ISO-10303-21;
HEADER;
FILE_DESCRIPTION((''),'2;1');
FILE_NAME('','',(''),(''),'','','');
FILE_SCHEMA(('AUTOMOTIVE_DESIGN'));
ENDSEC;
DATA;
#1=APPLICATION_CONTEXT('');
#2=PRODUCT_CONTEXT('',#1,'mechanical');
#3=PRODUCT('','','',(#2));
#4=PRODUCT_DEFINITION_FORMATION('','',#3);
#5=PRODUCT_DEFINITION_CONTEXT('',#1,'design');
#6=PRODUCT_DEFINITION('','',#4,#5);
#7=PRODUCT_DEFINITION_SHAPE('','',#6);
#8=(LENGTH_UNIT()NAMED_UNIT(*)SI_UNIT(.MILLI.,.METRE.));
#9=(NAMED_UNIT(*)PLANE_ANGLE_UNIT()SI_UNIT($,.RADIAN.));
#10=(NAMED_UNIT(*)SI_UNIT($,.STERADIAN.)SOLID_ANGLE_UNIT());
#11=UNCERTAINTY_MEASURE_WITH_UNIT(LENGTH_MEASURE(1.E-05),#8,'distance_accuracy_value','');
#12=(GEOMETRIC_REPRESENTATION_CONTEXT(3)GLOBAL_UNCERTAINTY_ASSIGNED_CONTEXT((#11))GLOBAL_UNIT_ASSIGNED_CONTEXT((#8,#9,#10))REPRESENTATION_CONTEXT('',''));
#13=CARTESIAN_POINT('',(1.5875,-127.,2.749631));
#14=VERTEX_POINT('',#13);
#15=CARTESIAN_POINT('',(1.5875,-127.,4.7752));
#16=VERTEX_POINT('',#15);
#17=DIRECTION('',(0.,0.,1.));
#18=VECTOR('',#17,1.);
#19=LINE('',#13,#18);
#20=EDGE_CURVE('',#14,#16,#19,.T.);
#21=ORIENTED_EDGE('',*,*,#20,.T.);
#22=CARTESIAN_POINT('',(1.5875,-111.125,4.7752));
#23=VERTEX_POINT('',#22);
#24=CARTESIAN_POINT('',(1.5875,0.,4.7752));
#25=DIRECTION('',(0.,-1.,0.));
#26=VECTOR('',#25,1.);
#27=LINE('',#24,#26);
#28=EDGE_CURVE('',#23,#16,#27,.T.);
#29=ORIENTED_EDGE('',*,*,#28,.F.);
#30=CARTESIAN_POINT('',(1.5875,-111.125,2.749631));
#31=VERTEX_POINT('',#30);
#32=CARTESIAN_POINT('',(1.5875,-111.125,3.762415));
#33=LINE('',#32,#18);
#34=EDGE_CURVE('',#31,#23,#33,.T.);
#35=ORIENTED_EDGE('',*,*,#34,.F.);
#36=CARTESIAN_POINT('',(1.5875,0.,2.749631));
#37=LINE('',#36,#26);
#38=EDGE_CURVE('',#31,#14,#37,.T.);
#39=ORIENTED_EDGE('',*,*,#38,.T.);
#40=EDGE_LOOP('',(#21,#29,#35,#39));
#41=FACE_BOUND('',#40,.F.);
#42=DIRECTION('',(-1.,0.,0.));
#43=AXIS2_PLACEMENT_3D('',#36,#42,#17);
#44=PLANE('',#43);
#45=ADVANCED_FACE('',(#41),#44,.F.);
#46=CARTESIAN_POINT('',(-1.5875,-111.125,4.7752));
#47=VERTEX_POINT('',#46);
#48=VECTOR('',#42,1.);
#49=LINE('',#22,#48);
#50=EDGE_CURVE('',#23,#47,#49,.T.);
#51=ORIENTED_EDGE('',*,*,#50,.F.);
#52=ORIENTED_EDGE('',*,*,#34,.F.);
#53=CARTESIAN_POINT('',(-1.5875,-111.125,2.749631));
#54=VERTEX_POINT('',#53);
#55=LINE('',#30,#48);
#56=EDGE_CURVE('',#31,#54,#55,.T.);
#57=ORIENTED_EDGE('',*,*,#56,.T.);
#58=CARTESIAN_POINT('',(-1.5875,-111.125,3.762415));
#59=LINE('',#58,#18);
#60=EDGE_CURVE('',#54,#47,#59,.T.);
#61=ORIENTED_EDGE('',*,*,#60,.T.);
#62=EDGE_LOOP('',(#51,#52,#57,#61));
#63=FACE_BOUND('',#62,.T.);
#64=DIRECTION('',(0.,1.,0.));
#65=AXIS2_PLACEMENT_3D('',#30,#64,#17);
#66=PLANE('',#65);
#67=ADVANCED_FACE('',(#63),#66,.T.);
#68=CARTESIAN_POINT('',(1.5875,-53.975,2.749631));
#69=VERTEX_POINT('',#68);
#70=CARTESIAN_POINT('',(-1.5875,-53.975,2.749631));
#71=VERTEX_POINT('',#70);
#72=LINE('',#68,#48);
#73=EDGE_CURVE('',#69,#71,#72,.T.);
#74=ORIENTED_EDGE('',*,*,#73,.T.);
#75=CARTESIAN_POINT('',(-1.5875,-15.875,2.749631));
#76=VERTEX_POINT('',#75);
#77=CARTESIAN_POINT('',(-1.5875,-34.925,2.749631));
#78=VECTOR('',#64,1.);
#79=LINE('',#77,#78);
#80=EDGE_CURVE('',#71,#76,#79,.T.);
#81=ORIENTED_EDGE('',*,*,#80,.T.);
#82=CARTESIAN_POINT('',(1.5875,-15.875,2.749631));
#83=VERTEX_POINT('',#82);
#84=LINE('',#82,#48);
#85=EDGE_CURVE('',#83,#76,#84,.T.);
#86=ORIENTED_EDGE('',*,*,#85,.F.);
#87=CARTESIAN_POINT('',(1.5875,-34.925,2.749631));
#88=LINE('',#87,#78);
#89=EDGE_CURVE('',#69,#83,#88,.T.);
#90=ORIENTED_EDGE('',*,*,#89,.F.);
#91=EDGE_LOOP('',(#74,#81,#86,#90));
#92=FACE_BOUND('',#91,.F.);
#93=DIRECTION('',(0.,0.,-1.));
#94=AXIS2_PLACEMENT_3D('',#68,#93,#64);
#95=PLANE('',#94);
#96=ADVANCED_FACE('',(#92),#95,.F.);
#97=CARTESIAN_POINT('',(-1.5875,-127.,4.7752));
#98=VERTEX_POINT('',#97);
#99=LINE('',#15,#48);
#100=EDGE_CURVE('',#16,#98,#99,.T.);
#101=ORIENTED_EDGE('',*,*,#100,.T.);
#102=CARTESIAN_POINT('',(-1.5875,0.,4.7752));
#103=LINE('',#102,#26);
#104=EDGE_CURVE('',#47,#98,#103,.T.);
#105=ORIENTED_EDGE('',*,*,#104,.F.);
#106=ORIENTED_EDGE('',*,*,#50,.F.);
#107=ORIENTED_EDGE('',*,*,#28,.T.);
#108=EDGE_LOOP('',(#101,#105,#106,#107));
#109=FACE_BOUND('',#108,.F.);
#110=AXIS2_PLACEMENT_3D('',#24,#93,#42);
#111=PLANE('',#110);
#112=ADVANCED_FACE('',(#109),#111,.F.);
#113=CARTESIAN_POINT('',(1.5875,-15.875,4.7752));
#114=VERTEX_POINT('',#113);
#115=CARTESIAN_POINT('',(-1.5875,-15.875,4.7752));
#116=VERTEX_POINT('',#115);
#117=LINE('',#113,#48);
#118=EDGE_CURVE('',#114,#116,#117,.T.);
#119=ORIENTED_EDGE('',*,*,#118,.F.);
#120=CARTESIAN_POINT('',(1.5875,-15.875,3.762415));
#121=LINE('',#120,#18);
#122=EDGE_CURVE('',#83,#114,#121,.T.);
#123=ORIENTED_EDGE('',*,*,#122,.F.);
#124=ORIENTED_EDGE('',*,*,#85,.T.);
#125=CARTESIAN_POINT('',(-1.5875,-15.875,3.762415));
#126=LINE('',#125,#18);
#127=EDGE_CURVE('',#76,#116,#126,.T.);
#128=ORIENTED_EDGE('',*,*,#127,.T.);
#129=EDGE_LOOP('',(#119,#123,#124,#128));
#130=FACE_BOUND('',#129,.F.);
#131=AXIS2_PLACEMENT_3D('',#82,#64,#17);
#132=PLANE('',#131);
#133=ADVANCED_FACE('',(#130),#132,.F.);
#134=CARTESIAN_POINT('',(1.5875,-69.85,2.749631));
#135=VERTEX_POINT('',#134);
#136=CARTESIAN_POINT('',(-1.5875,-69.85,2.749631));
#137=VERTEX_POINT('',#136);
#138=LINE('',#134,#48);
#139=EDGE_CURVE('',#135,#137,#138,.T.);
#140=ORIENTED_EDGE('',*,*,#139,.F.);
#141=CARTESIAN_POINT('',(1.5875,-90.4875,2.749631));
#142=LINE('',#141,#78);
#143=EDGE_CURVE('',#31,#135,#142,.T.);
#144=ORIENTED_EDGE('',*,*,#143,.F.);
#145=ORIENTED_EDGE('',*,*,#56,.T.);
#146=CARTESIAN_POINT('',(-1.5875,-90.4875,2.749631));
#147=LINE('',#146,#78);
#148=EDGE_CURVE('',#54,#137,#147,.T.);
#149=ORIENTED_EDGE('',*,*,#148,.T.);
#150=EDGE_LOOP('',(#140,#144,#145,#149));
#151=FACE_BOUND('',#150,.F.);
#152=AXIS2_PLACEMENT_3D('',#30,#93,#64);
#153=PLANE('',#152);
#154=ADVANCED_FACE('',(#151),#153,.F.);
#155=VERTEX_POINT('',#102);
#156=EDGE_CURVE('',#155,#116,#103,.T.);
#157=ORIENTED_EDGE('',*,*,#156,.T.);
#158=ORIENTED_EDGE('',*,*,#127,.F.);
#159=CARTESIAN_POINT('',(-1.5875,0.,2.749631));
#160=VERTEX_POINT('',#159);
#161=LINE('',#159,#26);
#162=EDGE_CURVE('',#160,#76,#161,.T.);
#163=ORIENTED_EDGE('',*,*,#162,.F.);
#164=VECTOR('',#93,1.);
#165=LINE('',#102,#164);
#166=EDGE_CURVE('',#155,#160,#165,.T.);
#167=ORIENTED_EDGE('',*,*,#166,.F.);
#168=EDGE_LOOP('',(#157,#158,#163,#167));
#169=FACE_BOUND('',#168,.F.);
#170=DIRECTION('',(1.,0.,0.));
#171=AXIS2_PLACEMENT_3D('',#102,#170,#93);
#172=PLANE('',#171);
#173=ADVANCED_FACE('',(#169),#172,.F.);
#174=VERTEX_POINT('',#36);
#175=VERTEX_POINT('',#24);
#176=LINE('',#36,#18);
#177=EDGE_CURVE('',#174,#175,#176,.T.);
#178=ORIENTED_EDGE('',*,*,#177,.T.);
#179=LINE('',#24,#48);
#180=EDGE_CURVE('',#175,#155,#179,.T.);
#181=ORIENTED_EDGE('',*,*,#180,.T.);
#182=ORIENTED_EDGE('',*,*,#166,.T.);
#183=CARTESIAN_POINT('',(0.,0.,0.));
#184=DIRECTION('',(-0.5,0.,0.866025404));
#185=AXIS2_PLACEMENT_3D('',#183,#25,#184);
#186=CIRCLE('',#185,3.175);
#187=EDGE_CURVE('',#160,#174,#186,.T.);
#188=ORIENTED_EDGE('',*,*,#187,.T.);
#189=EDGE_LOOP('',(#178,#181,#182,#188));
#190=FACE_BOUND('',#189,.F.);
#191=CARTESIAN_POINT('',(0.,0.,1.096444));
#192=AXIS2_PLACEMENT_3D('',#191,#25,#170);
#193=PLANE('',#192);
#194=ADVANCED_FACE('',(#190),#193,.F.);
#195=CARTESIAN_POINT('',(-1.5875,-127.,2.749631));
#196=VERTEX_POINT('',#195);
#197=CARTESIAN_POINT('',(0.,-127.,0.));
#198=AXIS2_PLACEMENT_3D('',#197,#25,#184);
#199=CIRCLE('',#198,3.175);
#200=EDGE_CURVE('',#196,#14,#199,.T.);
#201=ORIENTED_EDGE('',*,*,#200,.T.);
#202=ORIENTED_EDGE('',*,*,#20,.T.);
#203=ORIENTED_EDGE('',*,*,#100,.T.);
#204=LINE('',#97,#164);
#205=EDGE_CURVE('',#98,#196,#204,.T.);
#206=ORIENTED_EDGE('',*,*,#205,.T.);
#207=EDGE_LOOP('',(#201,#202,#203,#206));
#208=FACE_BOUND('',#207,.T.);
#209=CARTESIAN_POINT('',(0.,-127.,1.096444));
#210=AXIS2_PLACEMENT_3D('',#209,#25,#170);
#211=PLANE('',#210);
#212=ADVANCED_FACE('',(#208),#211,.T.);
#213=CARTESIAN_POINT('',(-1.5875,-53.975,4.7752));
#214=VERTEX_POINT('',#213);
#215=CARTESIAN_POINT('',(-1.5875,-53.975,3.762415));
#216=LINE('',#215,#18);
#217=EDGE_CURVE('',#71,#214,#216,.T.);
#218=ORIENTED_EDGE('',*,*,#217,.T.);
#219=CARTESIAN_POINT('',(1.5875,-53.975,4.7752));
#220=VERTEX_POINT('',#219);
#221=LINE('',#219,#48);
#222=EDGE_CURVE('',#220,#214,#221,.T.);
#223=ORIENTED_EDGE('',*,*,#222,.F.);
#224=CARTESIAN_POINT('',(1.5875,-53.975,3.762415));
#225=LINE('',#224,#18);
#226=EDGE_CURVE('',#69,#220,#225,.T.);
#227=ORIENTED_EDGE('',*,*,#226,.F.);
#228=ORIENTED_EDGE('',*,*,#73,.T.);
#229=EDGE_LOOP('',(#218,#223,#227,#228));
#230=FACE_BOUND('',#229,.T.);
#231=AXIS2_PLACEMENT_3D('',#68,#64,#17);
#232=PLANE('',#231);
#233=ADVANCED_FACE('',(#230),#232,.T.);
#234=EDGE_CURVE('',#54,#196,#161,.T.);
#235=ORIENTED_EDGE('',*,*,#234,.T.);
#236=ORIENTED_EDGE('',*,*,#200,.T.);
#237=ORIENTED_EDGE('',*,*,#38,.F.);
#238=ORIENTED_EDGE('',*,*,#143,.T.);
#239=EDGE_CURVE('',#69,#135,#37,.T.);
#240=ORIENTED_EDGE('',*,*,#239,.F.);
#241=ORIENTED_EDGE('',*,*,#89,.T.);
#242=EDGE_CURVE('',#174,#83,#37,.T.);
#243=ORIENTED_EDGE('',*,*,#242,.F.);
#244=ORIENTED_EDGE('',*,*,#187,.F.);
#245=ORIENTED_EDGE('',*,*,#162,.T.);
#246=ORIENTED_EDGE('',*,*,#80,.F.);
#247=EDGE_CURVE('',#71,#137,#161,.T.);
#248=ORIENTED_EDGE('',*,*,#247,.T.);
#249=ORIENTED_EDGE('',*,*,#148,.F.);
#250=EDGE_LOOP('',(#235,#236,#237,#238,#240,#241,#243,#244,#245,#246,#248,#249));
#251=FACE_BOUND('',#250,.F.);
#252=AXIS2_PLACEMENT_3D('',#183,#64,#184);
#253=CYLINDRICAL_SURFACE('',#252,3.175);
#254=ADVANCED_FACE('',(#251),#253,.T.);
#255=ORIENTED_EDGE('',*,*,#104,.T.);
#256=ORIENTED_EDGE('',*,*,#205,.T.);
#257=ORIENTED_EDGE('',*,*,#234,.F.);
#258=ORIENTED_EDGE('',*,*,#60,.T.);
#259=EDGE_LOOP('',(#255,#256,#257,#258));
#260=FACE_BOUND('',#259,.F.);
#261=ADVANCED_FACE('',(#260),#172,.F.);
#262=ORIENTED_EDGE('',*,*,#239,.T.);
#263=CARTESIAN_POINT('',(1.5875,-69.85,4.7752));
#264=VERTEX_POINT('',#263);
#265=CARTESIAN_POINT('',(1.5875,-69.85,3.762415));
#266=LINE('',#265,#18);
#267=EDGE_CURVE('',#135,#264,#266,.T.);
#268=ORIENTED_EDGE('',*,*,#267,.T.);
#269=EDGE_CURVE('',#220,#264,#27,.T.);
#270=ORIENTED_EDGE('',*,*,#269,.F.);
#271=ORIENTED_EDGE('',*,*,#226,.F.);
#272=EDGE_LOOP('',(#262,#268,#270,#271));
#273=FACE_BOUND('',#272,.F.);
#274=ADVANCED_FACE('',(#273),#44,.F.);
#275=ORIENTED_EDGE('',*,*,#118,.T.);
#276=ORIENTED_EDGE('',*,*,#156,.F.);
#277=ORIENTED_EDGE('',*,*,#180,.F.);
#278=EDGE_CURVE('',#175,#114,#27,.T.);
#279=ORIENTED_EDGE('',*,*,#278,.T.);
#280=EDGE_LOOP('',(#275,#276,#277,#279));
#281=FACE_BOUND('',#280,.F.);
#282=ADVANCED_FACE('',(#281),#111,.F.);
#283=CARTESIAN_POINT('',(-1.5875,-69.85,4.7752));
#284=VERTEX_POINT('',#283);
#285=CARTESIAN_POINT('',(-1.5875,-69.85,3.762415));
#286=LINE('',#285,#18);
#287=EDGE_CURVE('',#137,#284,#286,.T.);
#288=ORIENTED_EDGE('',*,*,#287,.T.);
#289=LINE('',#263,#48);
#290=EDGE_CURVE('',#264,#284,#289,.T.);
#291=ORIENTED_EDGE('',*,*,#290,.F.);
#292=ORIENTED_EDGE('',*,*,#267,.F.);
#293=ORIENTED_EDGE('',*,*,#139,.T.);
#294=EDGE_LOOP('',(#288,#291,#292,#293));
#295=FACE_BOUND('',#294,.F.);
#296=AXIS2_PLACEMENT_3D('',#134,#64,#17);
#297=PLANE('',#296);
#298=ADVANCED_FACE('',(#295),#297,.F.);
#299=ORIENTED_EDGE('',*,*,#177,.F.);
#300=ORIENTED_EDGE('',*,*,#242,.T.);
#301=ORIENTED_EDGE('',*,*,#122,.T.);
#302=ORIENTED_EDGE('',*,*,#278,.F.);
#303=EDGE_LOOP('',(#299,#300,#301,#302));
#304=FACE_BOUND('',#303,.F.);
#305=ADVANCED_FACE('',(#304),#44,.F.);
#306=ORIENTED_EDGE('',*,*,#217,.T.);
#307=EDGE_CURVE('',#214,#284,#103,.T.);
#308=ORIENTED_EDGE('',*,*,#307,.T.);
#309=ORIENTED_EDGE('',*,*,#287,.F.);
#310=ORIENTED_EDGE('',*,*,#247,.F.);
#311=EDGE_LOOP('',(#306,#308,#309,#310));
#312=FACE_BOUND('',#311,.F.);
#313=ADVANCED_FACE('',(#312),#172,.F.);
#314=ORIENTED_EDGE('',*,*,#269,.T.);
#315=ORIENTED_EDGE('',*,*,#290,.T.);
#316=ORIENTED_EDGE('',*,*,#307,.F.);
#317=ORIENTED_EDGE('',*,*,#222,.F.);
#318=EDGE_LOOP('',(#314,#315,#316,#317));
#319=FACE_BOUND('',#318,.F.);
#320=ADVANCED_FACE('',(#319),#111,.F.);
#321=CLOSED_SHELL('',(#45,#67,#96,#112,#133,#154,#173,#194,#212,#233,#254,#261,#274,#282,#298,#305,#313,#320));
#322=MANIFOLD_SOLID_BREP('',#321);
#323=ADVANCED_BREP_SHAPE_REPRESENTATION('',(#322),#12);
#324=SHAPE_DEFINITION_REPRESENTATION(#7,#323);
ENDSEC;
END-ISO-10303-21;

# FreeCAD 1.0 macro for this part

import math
import FreeCAD as App
import Part
import Sketcher

V = App.Vector
Q = App.Units.Quantity


def add_polygon(sketch, points):
    """Adds a closed chain of lines whose ends are joined by coincident constraints."""
    first, n = sketch.GeometryCount, len(points)
    for a, b in zip(points, points[1:] + points[:1]):
        sketch.addGeometry(Part.LineSegment(App.Vector(*a, 0), App.Vector(*b, 0)), False)
    for i in range(n):
        sketch.addConstraint(Sketcher.Constraint("Coincident", first + i, 2, first + (i + 1) % n, 1))

doc = App.newDocument("Part")
body = doc.addObject("PartDesign::Body", "Body")

sketch1 = body.newObject("Sketcher::SketchObject", "Sketch")
sketch1.AttachmentSupport = (doc.getObject("XZ_Plane"), [""])
sketch1.MapMode = "FlatFace"
sketch1.addGeometry([
    Part.LineSegment(V(-1.6, 4.8, 0), V(-1.6, 2.7, 0)),
    Part.ArcOfCircle(Part.Circle(V(0, 0, 0), V(0, 0, 1), 3.2), math.radians(120), math.radians(420)),
    Part.LineSegment(V(1.6, 2.7, 0), V(1.6, 4.8, 0)),
    Part.LineSegment(V(1.6, 4.8, 0), V(-1.6, 4.8, 0)),
], False)
sketch1.addConstraint([
    Sketcher.Constraint("Coincident", 0, 2, 1, 1),
    Sketcher.Constraint("Coincident", 1, 2, 2, 1),
    Sketcher.Constraint("Coincident", 2, 2, 3, 1),
    Sketcher.Constraint("Coincident", 3, 2, 0, 1),
    Sketcher.Constraint("Vertical", 0),
    Sketcher.Constraint("Vertical", 2),
    Sketcher.Constraint("Horizontal", 3),
    Sketcher.Constraint("Coincident", 1, 3, -1, 1),
    Sketcher.Constraint("Horizontal", 0, 2, 1, 2),
    Sketcher.Constraint("Radius", 1, Q("0.125 in")),
    Sketcher.Constraint("DistanceX", 3, 2, 3, 1, Q("0.125 in")),
    Sketcher.Constraint("DistanceY", -1, 1, 2, 2, Q("0.188 in")),
])
pad1 = body.newObject("PartDesign::Pad", "Pad")
pad1.Profile = sketch1
pad1.Length = Q("5 in")

sketch2 = body.newObject("Sketcher::SketchObject", "Sketch001")
sketch2.AttachmentSupport = (doc.getObject("YZ_Plane"), [""])
sketch2.MapMode = "FlatFace"
sketch2.AttachmentOffset = App.Placement(V(0, 0, 0.0625 * 25.4), App.Rotation())
add_polygon(sketch2, [(-111.1, 4.8), (-111.1, 2.7), (-69.8, 2.7), (-69.8, 4.8)])
add_polygon(sketch2, [(-54, 4.8), (-54, 2.7), (-15.9, 2.7), (-15.9, 4.8)])
sketch2.addConstraint([
    Sketcher.Constraint("Vertical", 0),
    Sketcher.Constraint("Horizontal", 1),
    Sketcher.Constraint("Vertical", 2),
    Sketcher.Constraint("Horizontal", 3),
    Sketcher.Constraint("Vertical", 4),
    Sketcher.Constraint("Horizontal", 5),
    Sketcher.Constraint("Vertical", 6),
    Sketcher.Constraint("Horizontal", 7),
    Sketcher.Constraint("Horizontal", 1, 2, 4, 2),
    Sketcher.Constraint("Horizontal", 3, 2, 6, 2),
    Sketcher.Constraint("DistanceX", 5, 1, 5, 2, Q("1.5 in")),
    Sketcher.Constraint("DistanceX", 1, 1, 1, 2, Q("1.625 in")),
    Sketcher.Constraint("DistanceX", 1, 2, -1, 1, Q("2.75 in")),
    Sketcher.Constraint("DistanceX", 0, 2, 4, 2, Q("2.25 in")),
    Sketcher.Constraint("DistanceY", -1, 1, 2, 2, Q("0.188 in")),
    Sketcher.Constraint("DistanceY", 0, 2, 0, 1, Q("2.025569 mm")),
])
pocket1 = body.newObject("PartDesign::Pocket", "Pocket")
pocket1.Profile = sketch2
pocket1.Length = Q("0.125 in")

doc.recompute()
